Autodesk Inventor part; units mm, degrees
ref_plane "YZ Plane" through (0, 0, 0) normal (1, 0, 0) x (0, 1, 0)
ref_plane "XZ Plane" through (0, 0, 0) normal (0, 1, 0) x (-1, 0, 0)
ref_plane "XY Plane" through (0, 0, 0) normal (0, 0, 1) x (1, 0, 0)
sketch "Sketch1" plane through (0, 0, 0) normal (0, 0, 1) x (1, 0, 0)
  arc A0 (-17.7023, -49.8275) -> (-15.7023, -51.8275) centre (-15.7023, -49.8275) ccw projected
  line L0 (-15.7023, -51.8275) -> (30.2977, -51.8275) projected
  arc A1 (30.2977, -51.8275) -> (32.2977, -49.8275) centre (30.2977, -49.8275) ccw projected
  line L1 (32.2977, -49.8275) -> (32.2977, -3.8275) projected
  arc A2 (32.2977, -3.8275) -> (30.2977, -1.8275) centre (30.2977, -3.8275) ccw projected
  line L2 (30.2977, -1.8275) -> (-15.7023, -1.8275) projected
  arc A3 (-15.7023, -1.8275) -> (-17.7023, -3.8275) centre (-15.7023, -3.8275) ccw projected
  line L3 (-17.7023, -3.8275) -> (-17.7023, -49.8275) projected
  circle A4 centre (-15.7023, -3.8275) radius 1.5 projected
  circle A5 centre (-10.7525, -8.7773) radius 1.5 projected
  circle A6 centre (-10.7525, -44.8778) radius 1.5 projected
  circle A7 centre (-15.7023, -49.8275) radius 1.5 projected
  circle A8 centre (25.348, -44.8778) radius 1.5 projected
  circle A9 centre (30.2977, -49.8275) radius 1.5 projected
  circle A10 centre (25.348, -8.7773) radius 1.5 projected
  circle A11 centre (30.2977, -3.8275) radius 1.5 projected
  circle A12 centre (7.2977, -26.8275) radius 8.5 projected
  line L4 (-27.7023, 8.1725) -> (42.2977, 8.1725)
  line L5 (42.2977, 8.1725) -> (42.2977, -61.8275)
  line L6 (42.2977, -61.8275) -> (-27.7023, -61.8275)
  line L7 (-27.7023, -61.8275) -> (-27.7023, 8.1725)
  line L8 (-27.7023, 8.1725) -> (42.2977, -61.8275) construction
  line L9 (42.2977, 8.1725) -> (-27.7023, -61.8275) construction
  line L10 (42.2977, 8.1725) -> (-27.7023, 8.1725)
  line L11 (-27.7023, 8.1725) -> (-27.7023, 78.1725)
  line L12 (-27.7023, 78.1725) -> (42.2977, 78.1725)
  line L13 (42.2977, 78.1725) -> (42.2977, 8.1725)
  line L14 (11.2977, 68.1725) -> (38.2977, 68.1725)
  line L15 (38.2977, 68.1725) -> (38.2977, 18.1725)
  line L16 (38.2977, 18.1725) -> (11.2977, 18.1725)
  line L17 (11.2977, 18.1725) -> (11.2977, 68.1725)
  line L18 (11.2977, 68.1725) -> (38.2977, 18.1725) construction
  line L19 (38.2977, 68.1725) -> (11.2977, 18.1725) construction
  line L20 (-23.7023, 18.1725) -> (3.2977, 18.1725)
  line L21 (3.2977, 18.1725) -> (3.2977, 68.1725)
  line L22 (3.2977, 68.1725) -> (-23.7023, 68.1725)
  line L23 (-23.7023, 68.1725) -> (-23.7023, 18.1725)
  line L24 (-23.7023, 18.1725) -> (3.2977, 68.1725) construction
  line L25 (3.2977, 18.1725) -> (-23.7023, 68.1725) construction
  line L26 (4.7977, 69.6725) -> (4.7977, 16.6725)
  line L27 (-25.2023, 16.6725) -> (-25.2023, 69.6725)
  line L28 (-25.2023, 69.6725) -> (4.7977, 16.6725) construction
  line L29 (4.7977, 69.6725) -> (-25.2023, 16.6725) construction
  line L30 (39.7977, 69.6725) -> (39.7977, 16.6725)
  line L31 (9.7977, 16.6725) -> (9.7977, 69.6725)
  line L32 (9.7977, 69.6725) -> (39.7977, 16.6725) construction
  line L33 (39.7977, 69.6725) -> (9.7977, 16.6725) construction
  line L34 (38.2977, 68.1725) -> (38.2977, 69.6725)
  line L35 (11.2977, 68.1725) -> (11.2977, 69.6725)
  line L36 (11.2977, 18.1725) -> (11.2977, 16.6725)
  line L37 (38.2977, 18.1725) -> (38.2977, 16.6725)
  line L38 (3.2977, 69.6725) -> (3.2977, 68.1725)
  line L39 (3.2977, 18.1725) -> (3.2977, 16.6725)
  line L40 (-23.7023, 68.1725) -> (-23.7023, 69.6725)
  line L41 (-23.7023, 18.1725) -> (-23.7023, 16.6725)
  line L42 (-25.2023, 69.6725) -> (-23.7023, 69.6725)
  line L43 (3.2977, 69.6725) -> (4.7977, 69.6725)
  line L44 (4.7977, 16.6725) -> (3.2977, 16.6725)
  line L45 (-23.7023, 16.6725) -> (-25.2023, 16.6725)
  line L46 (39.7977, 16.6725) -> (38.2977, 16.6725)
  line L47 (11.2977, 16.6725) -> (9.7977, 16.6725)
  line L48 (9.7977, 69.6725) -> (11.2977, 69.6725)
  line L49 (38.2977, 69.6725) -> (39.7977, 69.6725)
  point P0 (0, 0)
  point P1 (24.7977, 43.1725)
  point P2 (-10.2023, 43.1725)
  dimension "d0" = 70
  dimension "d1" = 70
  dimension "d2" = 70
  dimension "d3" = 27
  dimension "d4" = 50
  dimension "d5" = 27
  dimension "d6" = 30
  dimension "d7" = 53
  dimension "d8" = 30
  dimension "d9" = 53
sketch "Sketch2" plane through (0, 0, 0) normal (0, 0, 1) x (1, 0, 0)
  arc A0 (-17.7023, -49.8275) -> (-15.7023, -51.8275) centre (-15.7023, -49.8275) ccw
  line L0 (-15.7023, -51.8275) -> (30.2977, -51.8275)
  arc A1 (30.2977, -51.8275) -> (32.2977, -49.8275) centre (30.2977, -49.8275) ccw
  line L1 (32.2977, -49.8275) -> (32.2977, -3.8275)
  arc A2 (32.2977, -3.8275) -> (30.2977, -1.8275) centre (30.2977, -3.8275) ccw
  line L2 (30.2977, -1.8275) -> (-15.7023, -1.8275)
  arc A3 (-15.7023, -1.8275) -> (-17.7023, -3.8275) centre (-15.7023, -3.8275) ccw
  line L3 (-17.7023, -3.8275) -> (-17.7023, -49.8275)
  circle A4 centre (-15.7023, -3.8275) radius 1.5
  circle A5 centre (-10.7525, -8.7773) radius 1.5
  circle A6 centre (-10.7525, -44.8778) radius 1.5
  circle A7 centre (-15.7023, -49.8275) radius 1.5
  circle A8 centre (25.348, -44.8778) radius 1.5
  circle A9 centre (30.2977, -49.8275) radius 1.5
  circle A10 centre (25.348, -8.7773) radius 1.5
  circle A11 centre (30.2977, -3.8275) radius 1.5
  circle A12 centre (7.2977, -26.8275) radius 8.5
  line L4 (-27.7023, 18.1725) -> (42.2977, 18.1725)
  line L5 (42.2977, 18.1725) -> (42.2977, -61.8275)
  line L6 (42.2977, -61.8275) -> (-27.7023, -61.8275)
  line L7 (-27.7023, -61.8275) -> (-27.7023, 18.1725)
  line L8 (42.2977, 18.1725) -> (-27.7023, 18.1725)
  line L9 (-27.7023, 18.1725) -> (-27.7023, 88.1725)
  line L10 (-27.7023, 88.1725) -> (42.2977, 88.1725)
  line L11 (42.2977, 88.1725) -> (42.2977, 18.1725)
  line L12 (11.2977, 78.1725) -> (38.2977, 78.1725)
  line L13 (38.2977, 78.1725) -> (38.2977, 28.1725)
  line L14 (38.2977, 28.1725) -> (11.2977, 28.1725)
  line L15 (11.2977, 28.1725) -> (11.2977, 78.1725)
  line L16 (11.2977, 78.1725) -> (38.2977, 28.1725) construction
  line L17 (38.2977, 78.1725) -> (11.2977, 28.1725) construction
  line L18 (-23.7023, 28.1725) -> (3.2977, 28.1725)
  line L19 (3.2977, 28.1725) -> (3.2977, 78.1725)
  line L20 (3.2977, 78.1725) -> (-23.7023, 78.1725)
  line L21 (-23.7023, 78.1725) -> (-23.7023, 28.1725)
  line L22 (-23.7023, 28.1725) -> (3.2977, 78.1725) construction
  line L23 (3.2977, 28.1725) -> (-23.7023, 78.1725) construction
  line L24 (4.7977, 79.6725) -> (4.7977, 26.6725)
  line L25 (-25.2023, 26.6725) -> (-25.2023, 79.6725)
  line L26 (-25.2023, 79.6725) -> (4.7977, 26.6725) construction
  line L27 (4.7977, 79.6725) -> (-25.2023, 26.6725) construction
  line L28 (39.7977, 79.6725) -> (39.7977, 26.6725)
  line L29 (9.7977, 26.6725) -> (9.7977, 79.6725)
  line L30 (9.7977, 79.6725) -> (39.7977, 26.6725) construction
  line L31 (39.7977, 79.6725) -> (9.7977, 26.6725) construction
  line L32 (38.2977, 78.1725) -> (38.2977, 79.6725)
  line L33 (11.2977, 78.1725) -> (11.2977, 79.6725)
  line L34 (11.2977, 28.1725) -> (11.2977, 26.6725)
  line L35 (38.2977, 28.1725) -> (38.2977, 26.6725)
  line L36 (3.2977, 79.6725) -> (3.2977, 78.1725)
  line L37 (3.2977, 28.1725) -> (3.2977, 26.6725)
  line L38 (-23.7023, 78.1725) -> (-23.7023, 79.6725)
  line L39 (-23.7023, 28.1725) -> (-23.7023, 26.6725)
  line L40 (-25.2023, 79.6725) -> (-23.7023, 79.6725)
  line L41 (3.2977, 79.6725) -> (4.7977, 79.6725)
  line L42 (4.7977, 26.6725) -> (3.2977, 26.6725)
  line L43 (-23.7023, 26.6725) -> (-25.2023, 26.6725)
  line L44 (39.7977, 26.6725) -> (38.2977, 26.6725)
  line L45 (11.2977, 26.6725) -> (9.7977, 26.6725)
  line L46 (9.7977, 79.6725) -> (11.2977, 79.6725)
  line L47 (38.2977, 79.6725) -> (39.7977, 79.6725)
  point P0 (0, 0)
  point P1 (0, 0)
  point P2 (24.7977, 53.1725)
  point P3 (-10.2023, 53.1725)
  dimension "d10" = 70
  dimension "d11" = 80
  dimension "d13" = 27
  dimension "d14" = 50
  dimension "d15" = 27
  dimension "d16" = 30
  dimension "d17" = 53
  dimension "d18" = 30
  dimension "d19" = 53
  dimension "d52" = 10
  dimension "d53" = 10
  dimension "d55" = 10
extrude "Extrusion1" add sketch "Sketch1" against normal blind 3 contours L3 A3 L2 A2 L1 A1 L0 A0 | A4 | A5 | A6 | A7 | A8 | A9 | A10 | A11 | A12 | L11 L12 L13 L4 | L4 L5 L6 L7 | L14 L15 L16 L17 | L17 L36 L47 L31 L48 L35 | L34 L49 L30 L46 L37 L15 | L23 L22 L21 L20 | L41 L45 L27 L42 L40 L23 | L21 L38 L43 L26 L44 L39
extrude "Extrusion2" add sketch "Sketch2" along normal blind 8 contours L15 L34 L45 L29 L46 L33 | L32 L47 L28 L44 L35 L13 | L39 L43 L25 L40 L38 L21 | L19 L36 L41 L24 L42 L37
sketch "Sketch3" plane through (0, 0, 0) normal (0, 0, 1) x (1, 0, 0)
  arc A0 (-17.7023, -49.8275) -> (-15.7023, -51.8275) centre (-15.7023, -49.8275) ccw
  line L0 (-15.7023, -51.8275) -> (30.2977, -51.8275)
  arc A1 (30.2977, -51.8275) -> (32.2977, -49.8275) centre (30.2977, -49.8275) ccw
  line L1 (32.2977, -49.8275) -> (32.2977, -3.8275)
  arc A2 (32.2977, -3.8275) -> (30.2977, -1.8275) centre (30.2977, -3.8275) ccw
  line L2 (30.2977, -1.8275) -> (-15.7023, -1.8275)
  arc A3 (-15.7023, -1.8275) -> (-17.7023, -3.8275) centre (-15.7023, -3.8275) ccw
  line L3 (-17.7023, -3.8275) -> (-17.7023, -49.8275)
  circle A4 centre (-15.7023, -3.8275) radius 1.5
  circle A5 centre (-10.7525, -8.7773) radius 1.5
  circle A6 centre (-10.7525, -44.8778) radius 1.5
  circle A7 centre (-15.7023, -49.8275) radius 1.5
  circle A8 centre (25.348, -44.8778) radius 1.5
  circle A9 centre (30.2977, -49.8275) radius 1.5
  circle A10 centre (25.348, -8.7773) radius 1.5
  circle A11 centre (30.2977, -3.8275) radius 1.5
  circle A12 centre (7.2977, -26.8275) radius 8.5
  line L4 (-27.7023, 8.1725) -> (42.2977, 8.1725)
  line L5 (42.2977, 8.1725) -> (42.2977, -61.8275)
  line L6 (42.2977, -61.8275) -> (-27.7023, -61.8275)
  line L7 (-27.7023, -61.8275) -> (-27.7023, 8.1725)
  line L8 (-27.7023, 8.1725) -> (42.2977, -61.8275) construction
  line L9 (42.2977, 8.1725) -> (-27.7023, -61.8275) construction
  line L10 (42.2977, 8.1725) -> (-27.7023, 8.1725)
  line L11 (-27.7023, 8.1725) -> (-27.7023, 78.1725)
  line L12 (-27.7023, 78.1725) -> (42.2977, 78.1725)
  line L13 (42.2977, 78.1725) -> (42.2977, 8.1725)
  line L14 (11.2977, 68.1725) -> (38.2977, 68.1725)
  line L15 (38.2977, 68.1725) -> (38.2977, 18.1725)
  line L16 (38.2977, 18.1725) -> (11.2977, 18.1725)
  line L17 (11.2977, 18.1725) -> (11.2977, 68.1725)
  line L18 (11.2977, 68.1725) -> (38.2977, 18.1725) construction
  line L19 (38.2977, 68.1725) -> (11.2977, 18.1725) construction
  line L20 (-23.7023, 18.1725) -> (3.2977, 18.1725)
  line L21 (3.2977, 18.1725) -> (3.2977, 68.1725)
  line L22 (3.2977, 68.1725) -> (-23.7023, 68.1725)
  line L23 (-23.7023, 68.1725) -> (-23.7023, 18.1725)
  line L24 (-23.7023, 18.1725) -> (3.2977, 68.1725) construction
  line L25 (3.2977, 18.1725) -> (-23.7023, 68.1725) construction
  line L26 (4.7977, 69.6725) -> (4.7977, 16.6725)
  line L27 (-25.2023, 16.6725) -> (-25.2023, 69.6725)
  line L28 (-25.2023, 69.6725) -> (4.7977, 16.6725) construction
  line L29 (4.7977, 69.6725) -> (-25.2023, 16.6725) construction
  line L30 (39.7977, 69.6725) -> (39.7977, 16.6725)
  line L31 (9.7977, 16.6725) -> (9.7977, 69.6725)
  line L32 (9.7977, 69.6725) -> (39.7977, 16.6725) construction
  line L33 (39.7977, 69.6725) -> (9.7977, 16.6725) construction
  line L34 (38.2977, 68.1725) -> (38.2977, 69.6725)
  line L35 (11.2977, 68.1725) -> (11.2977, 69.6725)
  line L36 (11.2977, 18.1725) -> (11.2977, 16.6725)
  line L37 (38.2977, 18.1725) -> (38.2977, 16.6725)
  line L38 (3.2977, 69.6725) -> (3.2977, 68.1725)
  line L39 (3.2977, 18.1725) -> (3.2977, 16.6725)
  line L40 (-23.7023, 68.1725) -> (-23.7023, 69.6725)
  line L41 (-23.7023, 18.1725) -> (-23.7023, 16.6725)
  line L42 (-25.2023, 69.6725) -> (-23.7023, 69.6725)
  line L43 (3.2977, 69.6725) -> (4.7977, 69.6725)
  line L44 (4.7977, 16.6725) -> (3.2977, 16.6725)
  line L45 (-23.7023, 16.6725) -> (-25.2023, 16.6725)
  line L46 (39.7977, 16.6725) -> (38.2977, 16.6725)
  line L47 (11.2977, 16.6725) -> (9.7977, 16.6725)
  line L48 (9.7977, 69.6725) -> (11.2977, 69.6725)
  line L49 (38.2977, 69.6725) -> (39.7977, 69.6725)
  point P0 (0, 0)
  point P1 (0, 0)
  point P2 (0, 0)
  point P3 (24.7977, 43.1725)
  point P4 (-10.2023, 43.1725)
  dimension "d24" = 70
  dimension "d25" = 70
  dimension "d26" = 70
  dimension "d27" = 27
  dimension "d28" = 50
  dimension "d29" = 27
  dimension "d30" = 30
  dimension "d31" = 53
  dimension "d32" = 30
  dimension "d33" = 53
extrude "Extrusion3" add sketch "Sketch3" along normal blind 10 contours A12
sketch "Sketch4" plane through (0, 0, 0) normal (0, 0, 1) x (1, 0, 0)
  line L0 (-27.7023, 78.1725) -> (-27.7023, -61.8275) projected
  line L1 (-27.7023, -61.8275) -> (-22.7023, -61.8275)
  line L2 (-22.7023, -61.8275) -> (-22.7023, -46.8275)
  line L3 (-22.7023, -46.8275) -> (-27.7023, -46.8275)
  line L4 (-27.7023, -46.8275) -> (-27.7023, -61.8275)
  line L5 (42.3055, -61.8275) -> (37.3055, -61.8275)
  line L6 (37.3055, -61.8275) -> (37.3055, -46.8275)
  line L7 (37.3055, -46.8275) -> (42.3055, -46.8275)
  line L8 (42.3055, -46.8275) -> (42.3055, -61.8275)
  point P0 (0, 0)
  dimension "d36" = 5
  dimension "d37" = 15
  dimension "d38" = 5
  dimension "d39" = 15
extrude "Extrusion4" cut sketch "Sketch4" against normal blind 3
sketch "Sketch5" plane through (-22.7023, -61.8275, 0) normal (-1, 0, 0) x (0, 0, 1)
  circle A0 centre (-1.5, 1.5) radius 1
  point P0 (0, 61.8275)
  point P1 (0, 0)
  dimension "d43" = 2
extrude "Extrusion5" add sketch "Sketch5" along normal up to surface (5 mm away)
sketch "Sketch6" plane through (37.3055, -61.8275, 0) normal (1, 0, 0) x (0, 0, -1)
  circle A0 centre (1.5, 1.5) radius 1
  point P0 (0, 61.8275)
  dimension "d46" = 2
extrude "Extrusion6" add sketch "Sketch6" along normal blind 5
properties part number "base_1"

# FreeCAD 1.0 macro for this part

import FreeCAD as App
import Part
import Sketcher
Q = App.Units.Quantity

doc = App.newDocument("Part")
body = doc.addObject("PartDesign::Body", "Body")

# Sketch on XY plane
sketch1 = body.newObject("Sketcher::SketchObject", "Sketch")
sketch1.AttachmentSupport = (doc.getObject("XY_Plane"), [""])
sketch1.MapMode = "FlatFace"
sketch1.addGeometry([
    Part.LineSegment(App.Vector(42.2977, -61.8275, 0), App.Vector(42.2977, 78.1725, 0)),
    Part.LineSegment(App.Vector(42.2977, 78.1725, 0), App.Vector(-27.7023, 78.1725, 0)),
    Part.LineSegment(App.Vector(-27.7023, 78.1725, 0), App.Vector(-27.7023, -61.8275, 0)),
    Part.LineSegment(App.Vector(-27.7023, -61.8275, 0), App.Vector(42.2977, -61.8275, 0)),
], False)
sketch1.addConstraint([
    Sketcher.Constraint("Coincident", 0, 2, 1, 1),
    Sketcher.Constraint("Coincident", 1, 2, 2, 1),
    Sketcher.Constraint("Coincident", 2, 2, 3, 1),
    Sketcher.Constraint("Coincident", 3, 2, 0, 1),
    Sketcher.Constraint("Vertical", 0),
    Sketcher.Constraint("Horizontal", 1),
    Sketcher.Constraint("Vertical", 2),
    Sketcher.Constraint("Horizontal", 3),
    Sketcher.Constraint("DistanceX", 1, 2, 1, 1, Q("70 mm")),
    Sketcher.Constraint("DistanceY", 0, 1, 0, 2, Q("140 mm")),
    Sketcher.Constraint("DistanceX", -1, 1, 0, 2, Q("42.2977 mm")),
    Sketcher.Constraint("DistanceY", -1, 1, 0, 2, Q("78.1725 mm")),
])
pad1 = body.newObject("PartDesign::Pad", "Pad")
pad1.Profile = sketch1
pad1.Length = 3
pad1.Reversed = True

# Sketch on XY plane
sketch2 = body.newObject("Sketcher::SketchObject", "Sketch001")
sketch2.AttachmentSupport = (doc.getObject("XY_Plane"), [""])
sketch2.MapMode = "FlatFace"
sketch2.addGeometry([
    Part.LineSegment(App.Vector(11.2977, 26.6725, 0), App.Vector(11.2977, 79.6725, 0)),  # 0
    Part.LineSegment(App.Vector(11.2977, 79.6725, 0), App.Vector(9.7977, 79.6725, 0)),  # 1
    Part.LineSegment(App.Vector(9.7977, 79.6725, 0), App.Vector(9.7977, 26.6725, 0)),  # 2
    Part.LineSegment(App.Vector(9.7977, 26.6725, 0), App.Vector(11.2977, 26.6725, 0)),  # 3
    Part.LineSegment(App.Vector(38.2977, 79.6725, 0), App.Vector(38.2977, 26.6725, 0)),  # 4
    Part.LineSegment(App.Vector(38.2977, 26.6725, 0), App.Vector(39.7977, 26.6725, 0)),  # 5
    Part.LineSegment(App.Vector(39.7977, 26.6725, 0), App.Vector(39.7977, 79.6725, 0)),  # 6
    Part.LineSegment(App.Vector(39.7977, 79.6725, 0), App.Vector(38.2977, 79.6725, 0)),  # 7
    Part.LineSegment(App.Vector(-23.7023, 26.6725, 0), App.Vector(-23.7023, 79.6725, 0)),  # 8
    Part.LineSegment(App.Vector(-23.7023, 79.6725, 0), App.Vector(-25.2023, 79.6725, 0)),  # 9
    Part.LineSegment(App.Vector(-25.2023, 79.6725, 0), App.Vector(-25.2023, 26.6725, 0)),  # 10
    Part.LineSegment(App.Vector(-25.2023, 26.6725, 0), App.Vector(-23.7023, 26.6725, 0)),  # 11
    Part.LineSegment(App.Vector(3.2977, 79.6725, 0), App.Vector(3.2977, 26.6725, 0)),  # 12
    Part.LineSegment(App.Vector(3.2977, 26.6725, 0), App.Vector(4.7977, 26.6725, 0)),  # 13
    Part.LineSegment(App.Vector(4.7977, 26.6725, 0), App.Vector(4.7977, 79.6725, 0)),  # 14
    Part.LineSegment(App.Vector(4.7977, 79.6725, 0), App.Vector(3.2977, 79.6725, 0)),  # 15
], False)
sketch2.addConstraint([
    Sketcher.Constraint("Coincident", 0, 2, 1, 1),
    Sketcher.Constraint("Coincident", 1, 2, 2, 1),
    Sketcher.Constraint("Coincident", 2, 2, 3, 1),
    Sketcher.Constraint("Coincident", 3, 2, 0, 1),
    Sketcher.Constraint("Coincident", 4, 2, 5, 1),
    Sketcher.Constraint("Coincident", 5, 2, 6, 1),
    Sketcher.Constraint("Coincident", 6, 2, 7, 1),
    Sketcher.Constraint("Coincident", 7, 2, 4, 1),
    Sketcher.Constraint("Coincident", 8, 2, 9, 1),
    Sketcher.Constraint("Coincident", 9, 2, 10, 1),
    Sketcher.Constraint("Coincident", 10, 2, 11, 1),
    Sketcher.Constraint("Coincident", 11, 2, 8, 1),
    Sketcher.Constraint("Coincident", 12, 2, 13, 1),
    Sketcher.Constraint("Coincident", 13, 2, 14, 1),
    Sketcher.Constraint("Coincident", 14, 2, 15, 1),
    Sketcher.Constraint("Coincident", 15, 2, 12, 1),
    Sketcher.Constraint("Vertical", 0),
    Sketcher.Constraint("Horizontal", 1),
    Sketcher.Constraint("Vertical", 2),
    Sketcher.Constraint("Horizontal", 3),
    Sketcher.Constraint("Vertical", 4),
    Sketcher.Constraint("Horizontal", 5),
    Sketcher.Constraint("Vertical", 6),
    Sketcher.Constraint("Horizontal", 7),
    Sketcher.Constraint("Vertical", 8),
    Sketcher.Constraint("Horizontal", 9),
    Sketcher.Constraint("Vertical", 10),
    Sketcher.Constraint("Horizontal", 11),
    Sketcher.Constraint("Vertical", 12),
    Sketcher.Constraint("Horizontal", 13),
    Sketcher.Constraint("Vertical", 14),
    Sketcher.Constraint("Horizontal", 15),
    Sketcher.Constraint("Horizontal", 3, 2, 4, 2),
    Sketcher.Constraint("Horizontal", 1, 2, 6, 2),
    Sketcher.Constraint("Horizontal", 7, 2, 8, 2),
    Sketcher.Constraint("Horizontal", 5, 2, 10, 2),
    Sketcher.Constraint("Horizontal", 11, 2, 12, 2),
    Sketcher.Constraint("Horizontal", 9, 2, 14, 2),
    Sketcher.Constraint("Equal", 3, 5),
    Sketcher.Constraint("Equal", 7, 9),
    Sketcher.Constraint("Equal", 11, 13),
    Sketcher.Constraint("DistanceY", 0, 1, 0, 2, Q("53 mm")),
    Sketcher.Constraint("DistanceX", 3, 2, 4, 2, Q("27 mm")),
    Sketcher.Constraint("DistanceX", 2, 2, 5, 2, Q("30 mm")),
    Sketcher.Constraint("DistanceX", 11, 2, 12, 2, Q("27 mm")),
    Sketcher.Constraint("DistanceX", 8, 2, 0, 2, Q("35 mm")),
    Sketcher.Constraint("DistanceX", -1, 1, 0, 2, Q("11.2977 mm")),
    Sketcher.Constraint("DistanceY", -1, 1, 0, 2, Q("79.6725 mm")),
])
pad2 = body.newObject("PartDesign::Pad", "Pad001")
pad2.Profile = sketch2
pad2.Length = 8

# Sketch on XY plane
sketch3 = body.newObject("Sketcher::SketchObject", "Sketch002")
sketch3.AttachmentSupport = (doc.getObject("XY_Plane"), [""])
sketch3.MapMode = "FlatFace"
sketch3.addGeometry(Part.Circle(App.Vector(7.2977, -26.8275, 0), App.Vector(0, 0, 1), 8.5), False)
sketch3.addConstraint([
    Sketcher.Constraint("Diameter", 0, Q("17 mm")),
    Sketcher.Constraint("DistanceX", -1, 1, 0, 3, Q("7.2977 mm")),
    Sketcher.Constraint("DistanceY", 0, 3, -1, 1, Q("26.8275 mm")),
])
pad3 = body.newObject("PartDesign::Pad", "Pad002")
pad3.Profile = sketch3
pad3.Length = 10

# Sketch on XY plane
sketch4 = body.newObject("Sketcher::SketchObject", "Sketch003")
sketch4.AttachmentSupport = (doc.getObject("XY_Plane"), [""])
sketch4.MapMode = "FlatFace"
sketch4.addGeometry([
    Part.LineSegment(App.Vector(-22.7023, -46.8275, 0), App.Vector(-27.7023, -46.8275, 0)),  # 0
    Part.LineSegment(App.Vector(-27.7023, -46.8275, 0), App.Vector(-27.7023, -61.8275, 0)),  # 1
    Part.LineSegment(App.Vector(-27.7023, -61.8275, 0), App.Vector(-22.7023, -61.8275, 0)),  # 2
    Part.LineSegment(App.Vector(-22.7023, -61.8275, 0), App.Vector(-22.7023, -46.8275, 0)),  # 3
    Part.LineSegment(App.Vector(37.3055, -61.8275, 0), App.Vector(42.3055, -61.8275, 0)),  # 4
    Part.LineSegment(App.Vector(42.3055, -61.8275, 0), App.Vector(42.3055, -46.8275, 0)),  # 5
    Part.LineSegment(App.Vector(42.3055, -46.8275, 0), App.Vector(37.3055, -46.8275, 0)),  # 6
    Part.LineSegment(App.Vector(37.3055, -46.8275, 0), App.Vector(37.3055, -61.8275, 0)),  # 7
], False)
sketch4.addConstraint([
    Sketcher.Constraint("Coincident", 0, 2, 1, 1),
    Sketcher.Constraint("Coincident", 1, 2, 2, 1),
    Sketcher.Constraint("Coincident", 2, 2, 3, 1),
    Sketcher.Constraint("Coincident", 3, 2, 0, 1),
    Sketcher.Constraint("Coincident", 4, 2, 5, 1),
    Sketcher.Constraint("Coincident", 5, 2, 6, 1),
    Sketcher.Constraint("Coincident", 6, 2, 7, 1),
    Sketcher.Constraint("Coincident", 7, 2, 4, 1),
    Sketcher.Constraint("Horizontal", 0),
    Sketcher.Constraint("Vertical", 1),
    Sketcher.Constraint("Horizontal", 2),
    Sketcher.Constraint("Vertical", 3),
    Sketcher.Constraint("Horizontal", 4),
    Sketcher.Constraint("Vertical", 5),
    Sketcher.Constraint("Horizontal", 6),
    Sketcher.Constraint("Vertical", 7),
    Sketcher.Constraint("Horizontal", 2, 2, 4, 2),
    Sketcher.Constraint("Horizontal", 3, 2, 5, 2),
    Sketcher.Constraint("Equal", 2, 4),
    Sketcher.Constraint("DistanceX", 0, 2, 0, 1, Q("5 mm")),
    Sketcher.Constraint("DistanceY", 1, 2, 1, 1, Q("15 mm")),
    Sketcher.Constraint("DistanceX", 0, 2, -1, 1, Q("27.7023 mm")),
    Sketcher.Constraint("DistanceY", 0, 2, -1, 1, Q("46.8275 mm")),
    Sketcher.Constraint("DistanceX", -1, 1, 4, 2, Q("42.3055 mm")),
])
pocket1 = body.newObject("PartDesign::Pocket", "Pocket")
pocket1.Profile = sketch4
pocket1.Length = 3

# Sketch on YZ plane
sketch5 = body.newObject("Sketcher::SketchObject", "Sketch004")
sketch5.AttachmentSupport = (doc.getObject("YZ_Plane"), [""])
sketch5.MapMode = "FlatFace"
sketch5.AttachmentOffset = App.Placement(App.Vector(0, 0, -22.7023), App.Rotation())
sketch5.addGeometry(Part.Circle(App.Vector(-60.3275, -1.5, 0), App.Vector(0, 0, 1), 1), False)
sketch5.addConstraint([
    Sketcher.Constraint("Diameter", 0, Q("2 mm")),
    Sketcher.Constraint("DistanceY", 0, 3, -1, 1, Q("1.5 mm")),
    Sketcher.Constraint("DistanceX", 0, 3, -1, 1, Q("60.3275 mm")),
])
pad4 = body.newObject("PartDesign::Pad", "Pad003")
pad4.Profile = sketch5
pad4.Length = 5
pad4.Reversed = True

# Sketch on YZ plane
sketch6 = body.newObject("Sketcher::SketchObject", "Sketch005")
sketch6.AttachmentSupport = (doc.getObject("YZ_Plane"), [""])
sketch6.MapMode = "FlatFace"
sketch6.AttachmentOffset = App.Placement(App.Vector(0, 0, 37.3055), App.Rotation())
sketch6.addGeometry(Part.Circle(App.Vector(-60.3275, -1.5, 0), App.Vector(0, 0, 1), 1), False)
sketch6.addConstraint([
    Sketcher.Constraint("Diameter", 0, Q("2 mm")),
    Sketcher.Constraint("DistanceY", 0, 3, -1, 1, Q("1.5 mm")),
    Sketcher.Constraint("DistanceX", 0, 3, -1, 1, Q("60.3275 mm")),
])
pad5 = body.newObject("PartDesign::Pad", "Pad004")
pad5.Profile = sketch6
pad5.Length = 5

doc.recompute()
